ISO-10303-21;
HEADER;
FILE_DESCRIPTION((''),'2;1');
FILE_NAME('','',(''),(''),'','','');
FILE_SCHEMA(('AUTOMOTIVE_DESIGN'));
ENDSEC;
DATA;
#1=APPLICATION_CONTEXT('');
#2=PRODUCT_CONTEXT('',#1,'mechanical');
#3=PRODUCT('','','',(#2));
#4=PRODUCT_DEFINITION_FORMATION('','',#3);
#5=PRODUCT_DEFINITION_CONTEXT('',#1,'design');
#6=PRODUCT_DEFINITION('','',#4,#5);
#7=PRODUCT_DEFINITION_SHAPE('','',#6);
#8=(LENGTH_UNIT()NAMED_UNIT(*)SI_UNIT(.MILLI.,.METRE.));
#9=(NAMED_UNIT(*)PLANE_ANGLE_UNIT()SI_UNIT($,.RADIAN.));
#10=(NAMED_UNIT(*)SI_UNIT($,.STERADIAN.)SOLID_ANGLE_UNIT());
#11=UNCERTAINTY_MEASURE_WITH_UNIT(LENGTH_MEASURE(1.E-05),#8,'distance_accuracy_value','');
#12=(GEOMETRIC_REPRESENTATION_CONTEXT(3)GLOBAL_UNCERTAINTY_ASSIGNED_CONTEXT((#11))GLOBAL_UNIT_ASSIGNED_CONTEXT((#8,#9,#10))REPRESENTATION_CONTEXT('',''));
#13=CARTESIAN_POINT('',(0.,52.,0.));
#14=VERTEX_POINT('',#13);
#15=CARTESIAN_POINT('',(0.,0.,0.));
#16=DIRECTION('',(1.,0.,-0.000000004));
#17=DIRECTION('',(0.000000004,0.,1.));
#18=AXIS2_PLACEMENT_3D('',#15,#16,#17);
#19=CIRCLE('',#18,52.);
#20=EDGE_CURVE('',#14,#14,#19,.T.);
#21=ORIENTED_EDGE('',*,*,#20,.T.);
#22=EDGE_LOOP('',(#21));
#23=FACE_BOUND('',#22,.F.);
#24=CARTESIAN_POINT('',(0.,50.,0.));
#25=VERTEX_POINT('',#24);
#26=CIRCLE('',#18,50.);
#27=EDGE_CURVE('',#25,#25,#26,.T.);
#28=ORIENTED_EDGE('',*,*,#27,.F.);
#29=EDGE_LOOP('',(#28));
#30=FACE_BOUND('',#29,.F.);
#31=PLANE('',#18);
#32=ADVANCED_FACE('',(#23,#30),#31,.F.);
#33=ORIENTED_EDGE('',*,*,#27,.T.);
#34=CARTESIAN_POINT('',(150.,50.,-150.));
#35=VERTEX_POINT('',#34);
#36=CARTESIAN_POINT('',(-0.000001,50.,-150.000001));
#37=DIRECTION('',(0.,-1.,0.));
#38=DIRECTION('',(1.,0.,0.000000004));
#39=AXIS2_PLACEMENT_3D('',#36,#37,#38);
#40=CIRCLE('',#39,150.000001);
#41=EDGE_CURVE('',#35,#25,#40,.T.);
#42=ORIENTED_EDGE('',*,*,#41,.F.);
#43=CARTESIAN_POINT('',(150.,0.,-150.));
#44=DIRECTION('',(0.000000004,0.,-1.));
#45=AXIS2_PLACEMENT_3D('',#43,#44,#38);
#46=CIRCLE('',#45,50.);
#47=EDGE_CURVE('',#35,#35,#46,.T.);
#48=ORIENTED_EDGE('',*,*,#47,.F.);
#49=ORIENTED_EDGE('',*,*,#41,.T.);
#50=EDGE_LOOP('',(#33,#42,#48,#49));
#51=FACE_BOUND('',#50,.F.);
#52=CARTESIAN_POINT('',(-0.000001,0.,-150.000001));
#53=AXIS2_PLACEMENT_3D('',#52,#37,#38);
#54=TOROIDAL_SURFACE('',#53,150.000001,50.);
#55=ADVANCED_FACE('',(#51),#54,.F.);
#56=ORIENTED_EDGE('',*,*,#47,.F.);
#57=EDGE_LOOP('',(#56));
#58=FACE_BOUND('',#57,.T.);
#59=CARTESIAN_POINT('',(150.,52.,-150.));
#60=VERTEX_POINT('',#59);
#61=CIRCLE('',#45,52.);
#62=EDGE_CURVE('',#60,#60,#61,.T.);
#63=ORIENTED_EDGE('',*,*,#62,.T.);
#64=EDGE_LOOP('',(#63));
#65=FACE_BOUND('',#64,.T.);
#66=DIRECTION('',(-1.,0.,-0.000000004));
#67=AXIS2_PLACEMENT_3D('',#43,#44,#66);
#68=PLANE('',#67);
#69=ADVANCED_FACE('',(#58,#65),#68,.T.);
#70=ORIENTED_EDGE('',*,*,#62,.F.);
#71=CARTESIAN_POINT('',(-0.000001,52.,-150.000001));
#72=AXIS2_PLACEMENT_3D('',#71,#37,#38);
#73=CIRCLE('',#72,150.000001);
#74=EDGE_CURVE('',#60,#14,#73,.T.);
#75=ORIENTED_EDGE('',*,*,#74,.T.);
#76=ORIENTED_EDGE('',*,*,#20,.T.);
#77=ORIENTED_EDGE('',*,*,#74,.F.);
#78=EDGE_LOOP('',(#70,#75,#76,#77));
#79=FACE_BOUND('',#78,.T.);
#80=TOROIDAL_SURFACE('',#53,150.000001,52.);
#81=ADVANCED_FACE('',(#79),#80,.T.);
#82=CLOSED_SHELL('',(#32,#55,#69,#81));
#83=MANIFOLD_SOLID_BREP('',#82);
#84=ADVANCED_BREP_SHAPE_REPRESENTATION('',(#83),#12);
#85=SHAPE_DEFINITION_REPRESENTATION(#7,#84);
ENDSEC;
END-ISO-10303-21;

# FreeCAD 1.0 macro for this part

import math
import FreeCAD as App
import Part
import Sketcher
from FreeCAD import Vector
Q = App.Units.Quantity

doc = App.newDocument("Part")
body = doc.addObject("PartDesign::Body", "Body")

sketch1 = body.newObject("Sketcher::SketchObject", "Sketch")
sketch1.AttachmentSupport = (doc.getObject("YZ_Plane"), [""])
sketch1.MapMode = "FlatFace"
sketch1.addGeometry([
    Part.Circle(Vector(0, 0, 0), Vector(0, 0, 1), 52),
    Part.Circle(Vector(0, 0, 0), Vector(0, 0, 1), 50),
], False)
sketch1.addConstraint([
    Sketcher.Constraint("Coincident", 0, 3, -1, 1),
    Sketcher.Constraint("Coincident", 1, 3, -1, 1),
    Sketcher.Constraint("Diameter", 0, Q("104 mm")),
    Sketcher.Constraint("Diameter", 1, Q("100 mm")),
])

sketch2 = body.newObject("Sketcher::SketchObject", "Sketch001")
sketch2.AttachmentSupport = (doc.getObject("XZ_Plane"), [""])
sketch2.MapMode = "FlatFace"
sketch2.addGeometry(Part.ArcOfCircle(Part.Circle(Vector(0, -150, 0), Vector(0, 0, 1), 150), math.radians(0), math.radians(90)), False)
sketch2.addConstraint([
    Sketcher.Constraint("Coincident", 0, 2, -1, 1),
    Sketcher.Constraint("PointOnObject", 0, 3, -2),
    Sketcher.Constraint("Radius", 0, Q("150.000001 mm")),
    Sketcher.Constraint("DistanceY", 0, 1, -1, 1, Q("150 mm")),
])
doc.recompute()

additivepipe = body.newObject("PartDesign::AdditivePipe", "AdditivePipe")
additivepipe.Profile = sketch1
additivepipe.Spine = (sketch2, ["Edge1"])

doc.recompute()
